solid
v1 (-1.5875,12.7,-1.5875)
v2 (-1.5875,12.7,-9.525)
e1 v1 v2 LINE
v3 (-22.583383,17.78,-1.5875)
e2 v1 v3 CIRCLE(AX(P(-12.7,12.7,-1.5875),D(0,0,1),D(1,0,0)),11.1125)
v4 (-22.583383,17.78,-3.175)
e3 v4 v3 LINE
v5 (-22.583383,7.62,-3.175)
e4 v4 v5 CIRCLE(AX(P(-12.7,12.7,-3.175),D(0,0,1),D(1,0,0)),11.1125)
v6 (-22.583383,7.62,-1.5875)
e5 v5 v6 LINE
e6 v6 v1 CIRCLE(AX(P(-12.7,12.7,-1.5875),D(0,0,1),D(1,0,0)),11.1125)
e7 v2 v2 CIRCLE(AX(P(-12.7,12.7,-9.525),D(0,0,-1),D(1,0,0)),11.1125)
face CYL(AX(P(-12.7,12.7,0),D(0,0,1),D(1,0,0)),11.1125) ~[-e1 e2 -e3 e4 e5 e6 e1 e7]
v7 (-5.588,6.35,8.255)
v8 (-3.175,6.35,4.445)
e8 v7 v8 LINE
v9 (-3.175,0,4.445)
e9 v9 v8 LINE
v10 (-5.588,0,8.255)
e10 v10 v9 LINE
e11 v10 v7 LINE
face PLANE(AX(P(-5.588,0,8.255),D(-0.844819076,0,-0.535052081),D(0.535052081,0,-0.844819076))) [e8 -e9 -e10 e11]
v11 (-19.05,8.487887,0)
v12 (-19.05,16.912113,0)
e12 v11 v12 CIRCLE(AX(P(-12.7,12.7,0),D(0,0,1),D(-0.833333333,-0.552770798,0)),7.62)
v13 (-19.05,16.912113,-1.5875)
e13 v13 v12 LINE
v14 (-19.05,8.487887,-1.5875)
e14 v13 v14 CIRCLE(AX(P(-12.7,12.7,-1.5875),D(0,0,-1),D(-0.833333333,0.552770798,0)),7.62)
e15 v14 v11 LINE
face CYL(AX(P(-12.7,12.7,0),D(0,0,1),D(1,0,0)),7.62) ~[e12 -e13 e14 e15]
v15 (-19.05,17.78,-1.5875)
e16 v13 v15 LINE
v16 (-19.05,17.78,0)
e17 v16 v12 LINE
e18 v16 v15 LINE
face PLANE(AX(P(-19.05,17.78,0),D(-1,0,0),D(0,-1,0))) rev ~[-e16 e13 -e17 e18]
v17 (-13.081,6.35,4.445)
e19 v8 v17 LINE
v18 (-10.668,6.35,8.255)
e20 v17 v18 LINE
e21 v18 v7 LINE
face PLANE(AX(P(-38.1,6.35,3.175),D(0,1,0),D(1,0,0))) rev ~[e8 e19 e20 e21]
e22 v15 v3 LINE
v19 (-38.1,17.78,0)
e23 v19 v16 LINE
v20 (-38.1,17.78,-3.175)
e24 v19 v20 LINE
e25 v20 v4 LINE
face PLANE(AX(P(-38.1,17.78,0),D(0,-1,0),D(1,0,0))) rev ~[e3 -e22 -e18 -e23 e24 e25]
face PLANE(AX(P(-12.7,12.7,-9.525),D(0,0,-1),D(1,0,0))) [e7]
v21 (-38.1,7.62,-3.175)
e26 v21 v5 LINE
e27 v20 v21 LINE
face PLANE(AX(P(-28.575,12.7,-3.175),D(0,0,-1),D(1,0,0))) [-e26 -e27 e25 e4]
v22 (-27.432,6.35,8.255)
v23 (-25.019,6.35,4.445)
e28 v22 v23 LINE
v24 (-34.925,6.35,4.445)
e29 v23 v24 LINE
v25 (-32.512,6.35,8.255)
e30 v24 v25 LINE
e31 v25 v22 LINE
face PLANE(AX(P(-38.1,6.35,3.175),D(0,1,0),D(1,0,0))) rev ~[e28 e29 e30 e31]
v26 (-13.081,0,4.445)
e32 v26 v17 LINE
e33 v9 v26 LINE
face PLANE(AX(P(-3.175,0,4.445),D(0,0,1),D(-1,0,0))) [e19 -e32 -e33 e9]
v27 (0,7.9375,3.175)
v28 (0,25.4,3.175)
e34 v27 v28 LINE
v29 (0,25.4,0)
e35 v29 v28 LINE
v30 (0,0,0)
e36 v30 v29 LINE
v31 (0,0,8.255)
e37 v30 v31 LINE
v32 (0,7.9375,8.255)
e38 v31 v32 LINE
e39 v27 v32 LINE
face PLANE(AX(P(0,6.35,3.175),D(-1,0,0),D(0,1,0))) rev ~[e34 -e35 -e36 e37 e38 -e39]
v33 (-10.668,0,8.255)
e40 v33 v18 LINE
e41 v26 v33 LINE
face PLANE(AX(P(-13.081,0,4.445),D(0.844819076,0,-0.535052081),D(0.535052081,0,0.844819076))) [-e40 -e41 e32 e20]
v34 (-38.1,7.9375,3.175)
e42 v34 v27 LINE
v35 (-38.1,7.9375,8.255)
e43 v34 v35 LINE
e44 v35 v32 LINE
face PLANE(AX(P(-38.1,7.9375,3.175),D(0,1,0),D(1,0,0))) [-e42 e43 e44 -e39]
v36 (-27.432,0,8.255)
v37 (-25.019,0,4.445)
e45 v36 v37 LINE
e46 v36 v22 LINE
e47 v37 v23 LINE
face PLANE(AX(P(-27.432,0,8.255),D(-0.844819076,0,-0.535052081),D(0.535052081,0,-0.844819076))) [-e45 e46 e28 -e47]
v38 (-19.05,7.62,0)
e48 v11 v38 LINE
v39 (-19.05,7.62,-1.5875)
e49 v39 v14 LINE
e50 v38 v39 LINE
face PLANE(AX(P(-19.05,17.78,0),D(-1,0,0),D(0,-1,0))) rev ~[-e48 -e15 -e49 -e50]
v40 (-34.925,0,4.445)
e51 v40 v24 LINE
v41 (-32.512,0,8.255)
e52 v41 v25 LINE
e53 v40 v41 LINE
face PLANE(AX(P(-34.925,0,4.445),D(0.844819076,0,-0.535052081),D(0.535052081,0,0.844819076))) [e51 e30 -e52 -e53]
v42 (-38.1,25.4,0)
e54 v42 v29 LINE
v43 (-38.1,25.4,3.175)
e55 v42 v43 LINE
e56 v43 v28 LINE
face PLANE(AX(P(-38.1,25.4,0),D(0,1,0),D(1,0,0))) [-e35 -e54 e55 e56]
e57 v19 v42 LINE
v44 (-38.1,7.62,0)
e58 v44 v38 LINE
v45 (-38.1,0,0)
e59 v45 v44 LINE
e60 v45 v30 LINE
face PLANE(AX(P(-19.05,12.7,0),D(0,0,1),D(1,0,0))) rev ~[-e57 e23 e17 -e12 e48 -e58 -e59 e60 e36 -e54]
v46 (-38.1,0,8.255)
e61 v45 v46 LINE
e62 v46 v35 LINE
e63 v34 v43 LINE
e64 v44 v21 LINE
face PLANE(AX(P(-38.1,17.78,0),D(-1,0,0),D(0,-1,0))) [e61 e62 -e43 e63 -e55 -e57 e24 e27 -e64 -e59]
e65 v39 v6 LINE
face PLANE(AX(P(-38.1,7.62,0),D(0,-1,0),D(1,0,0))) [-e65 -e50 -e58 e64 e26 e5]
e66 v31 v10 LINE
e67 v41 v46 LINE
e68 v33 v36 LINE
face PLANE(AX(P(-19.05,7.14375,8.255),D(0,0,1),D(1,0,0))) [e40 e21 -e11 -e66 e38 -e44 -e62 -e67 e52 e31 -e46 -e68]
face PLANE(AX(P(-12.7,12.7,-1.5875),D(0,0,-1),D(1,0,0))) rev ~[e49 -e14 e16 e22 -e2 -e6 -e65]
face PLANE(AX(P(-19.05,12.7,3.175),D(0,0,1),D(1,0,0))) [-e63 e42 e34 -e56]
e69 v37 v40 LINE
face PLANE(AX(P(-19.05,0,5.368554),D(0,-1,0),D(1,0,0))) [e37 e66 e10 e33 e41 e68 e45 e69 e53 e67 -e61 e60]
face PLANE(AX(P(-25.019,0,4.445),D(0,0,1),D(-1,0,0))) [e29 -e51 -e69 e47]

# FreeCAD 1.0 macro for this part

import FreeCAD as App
import Part
import Sketcher
from FreeCAD import Vector
Q = App.Units.Quantity

doc = App.newDocument("Part")
body = doc.addObject("PartDesign::Body", "Body")

# Sketch on XY plane
sketch1 = doc.addObject("Sketcher::SketchObject", "Sketch")
body.addObject(sketch1)
sketch1.AttachmentSupport = (doc.XY_Plane, [""])
sketch1.MapMode = "FlatFace"
sketch1.addGeometry(Part.LineSegment(Vector(-38.1, 25.4, 0), Vector(-38.1, 0, 0)), False)
sketch1.addGeometry(Part.LineSegment(Vector(-38.1, 0, 0), Vector(0, 0, 0)), False)
sketch1.addGeometry(Part.LineSegment(Vector(0, 0, 0), Vector(0, 25.4, 0)), False)
sketch1.addGeometry(Part.LineSegment(Vector(0, 25.4, 0), Vector(-38.1, 25.4, 0)), False)
sketch1.addConstraint(Sketcher.Constraint("Coincident", 0, 2, 1, 1))
sketch1.addConstraint(Sketcher.Constraint("Coincident", 1, 2, 2, 1))
sketch1.addConstraint(Sketcher.Constraint("Coincident", 2, 2, 3, 1))
sketch1.addConstraint(Sketcher.Constraint("Coincident", 3, 2, 0, 1))
sketch1.addConstraint(Sketcher.Constraint("Vertical", 0))
sketch1.addConstraint(Sketcher.Constraint("Horizontal", 1))
sketch1.addConstraint(Sketcher.Constraint("Vertical", 2))
sketch1.addConstraint(Sketcher.Constraint("Horizontal", 3))
sketch1.addConstraint(Sketcher.Constraint("Coincident", 1, 2, -1, 1))
sketch1.addConstraint(Sketcher.Constraint("DistanceY", 0, 2, 0, 1, Q("1 in")))
sketch1.addConstraint(Sketcher.Constraint("DistanceX", 1, 1, 1, 2, Q("1.5 in")))
pad1 = doc.addObject("PartDesign::Pad", "Pad")
body.addObject(pad1)
pad1.Profile = sketch1
pad1.Length = Q("0.125 in")

# Sketch on XZ plane
sketch2 = doc.addObject("Sketcher::SketchObject", "Sketch001")
body.addObject(sketch2)
sketch2.AttachmentSupport = (doc.XZ_Plane, [""])
sketch2.MapMode = "FlatFace"
sketch2.addGeometry(Part.LineSegment(Vector(-38.1, 8.255, 0), Vector(-38.1, 3.175, 0)), False)
sketch2.addGeometry(Part.LineSegment(Vector(-38.1, 3.175, 0), Vector(0, 3.175, 0)), False)
sketch2.addGeometry(Part.LineSegment(Vector(0, 3.175, 0), Vector(0, 8.255, 0)), False)
sketch2.addGeometry(Part.LineSegment(Vector(0, 8.255, 0), Vector(-5.588, 8.255, 0)), False)
sketch2.addGeometry(Part.LineSegment(Vector(-5.588, 8.255, 0), Vector(-3.175, 4.445, 0)), False)
sketch2.addGeometry(Part.LineSegment(Vector(-3.175, 4.445, 0), Vector(-13.081, 4.445, 0)), False)
sketch2.addGeometry(Part.LineSegment(Vector(-13.081, 4.445, 0), Vector(-10.668, 8.255, 0)), False)
sketch2.addGeometry(Part.LineSegment(Vector(-10.668, 8.255, 0), Vector(-27.432, 8.255, 0)), False)
sketch2.addGeometry(Part.LineSegment(Vector(-27.432, 8.255, 0), Vector(-25.019, 4.445, 0)), False)
sketch2.addGeometry(Part.LineSegment(Vector(-25.019, 4.445, 0), Vector(-34.925, 4.445, 0)), False)
sketch2.addGeometry(Part.LineSegment(Vector(-34.925, 4.445, 0), Vector(-32.512, 8.255, 0)), False)
sketch2.addGeometry(Part.LineSegment(Vector(-32.512, 8.255, 0), Vector(-38.1, 8.255, 0)), False)
sketch2.addConstraint(Sketcher.Constraint("Coincident", 0, 2, 1, 1))
sketch2.addConstraint(Sketcher.Constraint("Coincident", 1, 2, 2, 1))
sketch2.addConstraint(Sketcher.Constraint("Coincident", 2, 2, 3, 1))
sketch2.addConstraint(Sketcher.Constraint("Coincident", 3, 2, 4, 1))
sketch2.addConstraint(Sketcher.Constraint("Coincident", 4, 2, 5, 1))
sketch2.addConstraint(Sketcher.Constraint("Coincident", 5, 2, 6, 1))
sketch2.addConstraint(Sketcher.Constraint("Coincident", 6, 2, 7, 1))
sketch2.addConstraint(Sketcher.Constraint("Coincident", 7, 2, 8, 1))
sketch2.addConstraint(Sketcher.Constraint("Coincident", 8, 2, 9, 1))
sketch2.addConstraint(Sketcher.Constraint("Coincident", 9, 2, 10, 1))
sketch2.addConstraint(Sketcher.Constraint("Coincident", 10, 2, 11, 1))
sketch2.addConstraint(Sketcher.Constraint("Coincident", 11, 2, 0, 1))
sketch2.addConstraint(Sketcher.Constraint("Vertical", 0))
sketch2.addConstraint(Sketcher.Constraint("Horizontal", 1))
sketch2.addConstraint(Sketcher.Constraint("Vertical", 2))
sketch2.addConstraint(Sketcher.Constraint("Horizontal", 3))
sketch2.addConstraint(Sketcher.Constraint("Horizontal", 5))
sketch2.addConstraint(Sketcher.Constraint("Horizontal", 7))
sketch2.addConstraint(Sketcher.Constraint("Horizontal", 9))
sketch2.addConstraint(Sketcher.Constraint("Horizontal", 11))
sketch2.addConstraint(Sketcher.Constraint("PointOnObject", 1, 2, -2))
sketch2.addConstraint(Sketcher.Constraint("Parallel", 4, 8))
sketch2.addConstraint(Sketcher.Constraint("Parallel", 6, 10))
sketch2.addConstraint(Sketcher.Constraint("Horizontal", 3, 2, 6, 2))
sketch2.addConstraint(Sketcher.Constraint("Horizontal", 5, 2, 8, 2))
sketch2.addConstraint(Sketcher.Constraint("Horizontal", 7, 2, 10, 2))
sketch2.addConstraint(Sketcher.Constraint("Equal", 5, 9))
sketch2.addConstraint(Sketcher.Constraint("Equal", 3, 11))
sketch2.addConstraint(Sketcher.Constraint("Equal", 4, 6))
sketch2.addConstraint(Sketcher.Constraint("DistanceX", 1, 1, 1, 2, Q("1.5 in")))
sketch2.addConstraint(Sketcher.Constraint("DistanceY", 0, 2, 0, 1, Q("0.2 in")))
sketch2.addConstraint(Sketcher.Constraint("DistanceX", 3, 2, 3, 1, Q("0.22 in")))
sketch2.addConstraint(Sketcher.Constraint("DistanceX", 5, 2, 5, 1, Q("0.39 in")))
sketch2.addConstraint(Sketcher.Constraint("DistanceX", 7, 2, 7, 1, Q("0.66 in")))
sketch2.addConstraint(Sketcher.Constraint("DistanceY", 1, 2, 4, 2, Q("0.05 in")))
sketch2.addConstraint(Sketcher.Constraint("DistanceY", -1, 1, 0, 2, Q("0.125 in")))
pad2 = doc.addObject("PartDesign::Pad", "Pad001")
body.addObject(pad2)
pad2.Profile = sketch2
pad2.Length = Q("0.25 in")
pad2.Reversed = True

# Sketch on XY plane
sketch3 = doc.addObject("Sketcher::SketchObject", "Sketch002")
body.addObject(sketch3)
sketch3.AttachmentSupport = (doc.XY_Plane, [""])
sketch3.MapMode = "FlatFace"
sketch3.AttachmentOffset = App.Placement(Vector(0, 0, 0.125 * 25.4), App.Rotation())
sketch3.addGeometry(Part.LineSegment(Vector(-38.1, 7.9375, 0), Vector(-38.1, 6.35, 0)), False)
sketch3.addGeometry(Part.LineSegment(Vector(-38.1, 6.35, 0), Vector(0, 6.35, 0)), False)
sketch3.addGeometry(Part.LineSegment(Vector(0, 6.35, 0), Vector(0, 7.9375, 0)), False)
sketch3.addGeometry(Part.LineSegment(Vector(0, 7.9375, 0), Vector(-38.1, 7.9375, 0)), False)
sketch3.addConstraint(Sketcher.Constraint("Coincident", 0, 2, 1, 1))
sketch3.addConstraint(Sketcher.Constraint("Coincident", 1, 2, 2, 1))
sketch3.addConstraint(Sketcher.Constraint("Coincident", 2, 2, 3, 1))
sketch3.addConstraint(Sketcher.Constraint("Coincident", 3, 2, 0, 1))
sketch3.addConstraint(Sketcher.Constraint("Vertical", 0))
sketch3.addConstraint(Sketcher.Constraint("Horizontal", 1))
sketch3.addConstraint(Sketcher.Constraint("Vertical", 2))
sketch3.addConstraint(Sketcher.Constraint("Horizontal", 3))
sketch3.addConstraint(Sketcher.Constraint("PointOnObject", 1, 2, -2))
sketch3.addConstraint(Sketcher.Constraint("DistanceX", 1, 1, 1, 2, Q("1.5 in")))
sketch3.addConstraint(Sketcher.Constraint("DistanceY", 0, 2, 0, 1, Q("0.0625 in")))
sketch3.addConstraint(Sketcher.Constraint("DistanceY", -1, 1, 0, 2, Q("0.25 in")))
pad3 = doc.addObject("PartDesign::Pad", "Pad002")
body.addObject(pad3)
pad3.Profile = sketch3
pad3.Length = Q("0.2 in")

# Sketch on XY plane
sketch4 = doc.addObject("Sketcher::SketchObject", "Sketch003")
body.addObject(sketch4)
sketch4.AttachmentSupport = (doc.XY_Plane, [""])
sketch4.MapMode = "FlatFace"
sketch4.addGeometry(Part.Circle(Vector(-12.7, 12.7, 0), Vector(0, 0, 1), 11.1125), False)
sketch4.addConstraint(Sketcher.Constraint("Diameter", 0, Q("0.875 in")))
sketch4.addConstraint(Sketcher.Constraint("DistanceX", 0, 3, -1, 1, Q("0.5 in")))
sketch4.addConstraint(Sketcher.Constraint("DistanceY", -1, 1, 0, 3, Q("0.5 in")))
pad4 = doc.addObject("PartDesign::Pad", "Pad003")
body.addObject(pad4)
pad4.Profile = sketch4
pad4.Length = Q("0.375 in")
pad4.Reversed = True

# Sketch on XY plane
sketch5 = doc.addObject("Sketcher::SketchObject", "Sketch004")
body.addObject(sketch5)
sketch5.AttachmentSupport = (doc.XY_Plane, [""])
sketch5.MapMode = "FlatFace"
sketch5.addGeometry(Part.Circle(Vector(-12.7, 12.7, 0), Vector(0, 0, 1), 11.43), False)
sketch5.addGeometry(Part.Circle(Vector(-12.7, 12.7, 0), Vector(0, 0, 1), 7.62), False)
sketch5.addConstraint(Sketcher.Constraint("Coincident", 1, 3, 0, 3))
sketch5.addConstraint(Sketcher.Constraint("Diameter", 0, Q("0.9 in")))
sketch5.addConstraint(Sketcher.Constraint("Diameter", 1, Q("0.6 in")))
sketch5.addConstraint(Sketcher.Constraint("DistanceX", 0, 3, -1, 1, Q("0.5 in")))
sketch5.addConstraint(Sketcher.Constraint("DistanceY", -1, 1, 0, 3, Q("0.5 in")))
pocket1 = doc.addObject("PartDesign::Pocket", "Pocket")
body.addObject(pocket1)
pocket1.Profile = sketch5
pocket1.Length = Q("0.0625 in")

# Sketch on XY plane
sketch6 = doc.addObject("Sketcher::SketchObject", "Sketch005")
body.addObject(sketch6)
sketch6.AttachmentSupport = (doc.XY_Plane, [""])
sketch6.MapMode = "FlatFace"
sketch6.addGeometry(Part.LineSegment(Vector(-38.1, 7.62, 0), Vector(-38.1, 17.78, 0)), False)
sketch6.addGeometry(Part.LineSegment(Vector(-38.1, 17.78, 0), Vector(-19.05, 17.78, 0)), False)
sketch6.addGeometry(Part.LineSegment(Vector(-19.05, 17.78, 0), Vector(-19.05, 7.62, 0)), False)
sketch6.addGeometry(Part.LineSegment(Vector(-19.05, 7.62, 0), Vector(-38.1, 7.62, 0)), False)
sketch6.addConstraint(Sketcher.Constraint("Coincident", 0, 2, 1, 1))
sketch6.addConstraint(Sketcher.Constraint("Coincident", 1, 2, 2, 1))
sketch6.addConstraint(Sketcher.Constraint("Coincident", 2, 2, 3, 1))
sketch6.addConstraint(Sketcher.Constraint("Coincident", 3, 2, 0, 1))
sketch6.addConstraint(Sketcher.Constraint("Vertical", 0))
sketch6.addConstraint(Sketcher.Constraint("Horizontal", 1))
sketch6.addConstraint(Sketcher.Constraint("Vertical", 2))
sketch6.addConstraint(Sketcher.Constraint("Horizontal", 3))
sketch6.addConstraint(Sketcher.Constraint("DistanceY", 0, 1, 0, 2, Q("0.4 in")))
sketch6.addConstraint(Sketcher.Constraint("DistanceX", 1, 1, 1, 2, Q("0.75 in")))
sketch6.addConstraint(Sketcher.Constraint("DistanceX", 0, 2, -1, 1, Q("1.5 in")))
sketch6.addConstraint(Sketcher.Constraint("DistanceY", -1, 1, 0, 2, Q("0.7 in")))
pad5 = doc.addObject("PartDesign::Pad", "Pad004")
body.addObject(pad5)
pad5.Profile = sketch6
pad5.Length = Q("0.125 in")
pad5.Reversed = True

doc.recompute()
